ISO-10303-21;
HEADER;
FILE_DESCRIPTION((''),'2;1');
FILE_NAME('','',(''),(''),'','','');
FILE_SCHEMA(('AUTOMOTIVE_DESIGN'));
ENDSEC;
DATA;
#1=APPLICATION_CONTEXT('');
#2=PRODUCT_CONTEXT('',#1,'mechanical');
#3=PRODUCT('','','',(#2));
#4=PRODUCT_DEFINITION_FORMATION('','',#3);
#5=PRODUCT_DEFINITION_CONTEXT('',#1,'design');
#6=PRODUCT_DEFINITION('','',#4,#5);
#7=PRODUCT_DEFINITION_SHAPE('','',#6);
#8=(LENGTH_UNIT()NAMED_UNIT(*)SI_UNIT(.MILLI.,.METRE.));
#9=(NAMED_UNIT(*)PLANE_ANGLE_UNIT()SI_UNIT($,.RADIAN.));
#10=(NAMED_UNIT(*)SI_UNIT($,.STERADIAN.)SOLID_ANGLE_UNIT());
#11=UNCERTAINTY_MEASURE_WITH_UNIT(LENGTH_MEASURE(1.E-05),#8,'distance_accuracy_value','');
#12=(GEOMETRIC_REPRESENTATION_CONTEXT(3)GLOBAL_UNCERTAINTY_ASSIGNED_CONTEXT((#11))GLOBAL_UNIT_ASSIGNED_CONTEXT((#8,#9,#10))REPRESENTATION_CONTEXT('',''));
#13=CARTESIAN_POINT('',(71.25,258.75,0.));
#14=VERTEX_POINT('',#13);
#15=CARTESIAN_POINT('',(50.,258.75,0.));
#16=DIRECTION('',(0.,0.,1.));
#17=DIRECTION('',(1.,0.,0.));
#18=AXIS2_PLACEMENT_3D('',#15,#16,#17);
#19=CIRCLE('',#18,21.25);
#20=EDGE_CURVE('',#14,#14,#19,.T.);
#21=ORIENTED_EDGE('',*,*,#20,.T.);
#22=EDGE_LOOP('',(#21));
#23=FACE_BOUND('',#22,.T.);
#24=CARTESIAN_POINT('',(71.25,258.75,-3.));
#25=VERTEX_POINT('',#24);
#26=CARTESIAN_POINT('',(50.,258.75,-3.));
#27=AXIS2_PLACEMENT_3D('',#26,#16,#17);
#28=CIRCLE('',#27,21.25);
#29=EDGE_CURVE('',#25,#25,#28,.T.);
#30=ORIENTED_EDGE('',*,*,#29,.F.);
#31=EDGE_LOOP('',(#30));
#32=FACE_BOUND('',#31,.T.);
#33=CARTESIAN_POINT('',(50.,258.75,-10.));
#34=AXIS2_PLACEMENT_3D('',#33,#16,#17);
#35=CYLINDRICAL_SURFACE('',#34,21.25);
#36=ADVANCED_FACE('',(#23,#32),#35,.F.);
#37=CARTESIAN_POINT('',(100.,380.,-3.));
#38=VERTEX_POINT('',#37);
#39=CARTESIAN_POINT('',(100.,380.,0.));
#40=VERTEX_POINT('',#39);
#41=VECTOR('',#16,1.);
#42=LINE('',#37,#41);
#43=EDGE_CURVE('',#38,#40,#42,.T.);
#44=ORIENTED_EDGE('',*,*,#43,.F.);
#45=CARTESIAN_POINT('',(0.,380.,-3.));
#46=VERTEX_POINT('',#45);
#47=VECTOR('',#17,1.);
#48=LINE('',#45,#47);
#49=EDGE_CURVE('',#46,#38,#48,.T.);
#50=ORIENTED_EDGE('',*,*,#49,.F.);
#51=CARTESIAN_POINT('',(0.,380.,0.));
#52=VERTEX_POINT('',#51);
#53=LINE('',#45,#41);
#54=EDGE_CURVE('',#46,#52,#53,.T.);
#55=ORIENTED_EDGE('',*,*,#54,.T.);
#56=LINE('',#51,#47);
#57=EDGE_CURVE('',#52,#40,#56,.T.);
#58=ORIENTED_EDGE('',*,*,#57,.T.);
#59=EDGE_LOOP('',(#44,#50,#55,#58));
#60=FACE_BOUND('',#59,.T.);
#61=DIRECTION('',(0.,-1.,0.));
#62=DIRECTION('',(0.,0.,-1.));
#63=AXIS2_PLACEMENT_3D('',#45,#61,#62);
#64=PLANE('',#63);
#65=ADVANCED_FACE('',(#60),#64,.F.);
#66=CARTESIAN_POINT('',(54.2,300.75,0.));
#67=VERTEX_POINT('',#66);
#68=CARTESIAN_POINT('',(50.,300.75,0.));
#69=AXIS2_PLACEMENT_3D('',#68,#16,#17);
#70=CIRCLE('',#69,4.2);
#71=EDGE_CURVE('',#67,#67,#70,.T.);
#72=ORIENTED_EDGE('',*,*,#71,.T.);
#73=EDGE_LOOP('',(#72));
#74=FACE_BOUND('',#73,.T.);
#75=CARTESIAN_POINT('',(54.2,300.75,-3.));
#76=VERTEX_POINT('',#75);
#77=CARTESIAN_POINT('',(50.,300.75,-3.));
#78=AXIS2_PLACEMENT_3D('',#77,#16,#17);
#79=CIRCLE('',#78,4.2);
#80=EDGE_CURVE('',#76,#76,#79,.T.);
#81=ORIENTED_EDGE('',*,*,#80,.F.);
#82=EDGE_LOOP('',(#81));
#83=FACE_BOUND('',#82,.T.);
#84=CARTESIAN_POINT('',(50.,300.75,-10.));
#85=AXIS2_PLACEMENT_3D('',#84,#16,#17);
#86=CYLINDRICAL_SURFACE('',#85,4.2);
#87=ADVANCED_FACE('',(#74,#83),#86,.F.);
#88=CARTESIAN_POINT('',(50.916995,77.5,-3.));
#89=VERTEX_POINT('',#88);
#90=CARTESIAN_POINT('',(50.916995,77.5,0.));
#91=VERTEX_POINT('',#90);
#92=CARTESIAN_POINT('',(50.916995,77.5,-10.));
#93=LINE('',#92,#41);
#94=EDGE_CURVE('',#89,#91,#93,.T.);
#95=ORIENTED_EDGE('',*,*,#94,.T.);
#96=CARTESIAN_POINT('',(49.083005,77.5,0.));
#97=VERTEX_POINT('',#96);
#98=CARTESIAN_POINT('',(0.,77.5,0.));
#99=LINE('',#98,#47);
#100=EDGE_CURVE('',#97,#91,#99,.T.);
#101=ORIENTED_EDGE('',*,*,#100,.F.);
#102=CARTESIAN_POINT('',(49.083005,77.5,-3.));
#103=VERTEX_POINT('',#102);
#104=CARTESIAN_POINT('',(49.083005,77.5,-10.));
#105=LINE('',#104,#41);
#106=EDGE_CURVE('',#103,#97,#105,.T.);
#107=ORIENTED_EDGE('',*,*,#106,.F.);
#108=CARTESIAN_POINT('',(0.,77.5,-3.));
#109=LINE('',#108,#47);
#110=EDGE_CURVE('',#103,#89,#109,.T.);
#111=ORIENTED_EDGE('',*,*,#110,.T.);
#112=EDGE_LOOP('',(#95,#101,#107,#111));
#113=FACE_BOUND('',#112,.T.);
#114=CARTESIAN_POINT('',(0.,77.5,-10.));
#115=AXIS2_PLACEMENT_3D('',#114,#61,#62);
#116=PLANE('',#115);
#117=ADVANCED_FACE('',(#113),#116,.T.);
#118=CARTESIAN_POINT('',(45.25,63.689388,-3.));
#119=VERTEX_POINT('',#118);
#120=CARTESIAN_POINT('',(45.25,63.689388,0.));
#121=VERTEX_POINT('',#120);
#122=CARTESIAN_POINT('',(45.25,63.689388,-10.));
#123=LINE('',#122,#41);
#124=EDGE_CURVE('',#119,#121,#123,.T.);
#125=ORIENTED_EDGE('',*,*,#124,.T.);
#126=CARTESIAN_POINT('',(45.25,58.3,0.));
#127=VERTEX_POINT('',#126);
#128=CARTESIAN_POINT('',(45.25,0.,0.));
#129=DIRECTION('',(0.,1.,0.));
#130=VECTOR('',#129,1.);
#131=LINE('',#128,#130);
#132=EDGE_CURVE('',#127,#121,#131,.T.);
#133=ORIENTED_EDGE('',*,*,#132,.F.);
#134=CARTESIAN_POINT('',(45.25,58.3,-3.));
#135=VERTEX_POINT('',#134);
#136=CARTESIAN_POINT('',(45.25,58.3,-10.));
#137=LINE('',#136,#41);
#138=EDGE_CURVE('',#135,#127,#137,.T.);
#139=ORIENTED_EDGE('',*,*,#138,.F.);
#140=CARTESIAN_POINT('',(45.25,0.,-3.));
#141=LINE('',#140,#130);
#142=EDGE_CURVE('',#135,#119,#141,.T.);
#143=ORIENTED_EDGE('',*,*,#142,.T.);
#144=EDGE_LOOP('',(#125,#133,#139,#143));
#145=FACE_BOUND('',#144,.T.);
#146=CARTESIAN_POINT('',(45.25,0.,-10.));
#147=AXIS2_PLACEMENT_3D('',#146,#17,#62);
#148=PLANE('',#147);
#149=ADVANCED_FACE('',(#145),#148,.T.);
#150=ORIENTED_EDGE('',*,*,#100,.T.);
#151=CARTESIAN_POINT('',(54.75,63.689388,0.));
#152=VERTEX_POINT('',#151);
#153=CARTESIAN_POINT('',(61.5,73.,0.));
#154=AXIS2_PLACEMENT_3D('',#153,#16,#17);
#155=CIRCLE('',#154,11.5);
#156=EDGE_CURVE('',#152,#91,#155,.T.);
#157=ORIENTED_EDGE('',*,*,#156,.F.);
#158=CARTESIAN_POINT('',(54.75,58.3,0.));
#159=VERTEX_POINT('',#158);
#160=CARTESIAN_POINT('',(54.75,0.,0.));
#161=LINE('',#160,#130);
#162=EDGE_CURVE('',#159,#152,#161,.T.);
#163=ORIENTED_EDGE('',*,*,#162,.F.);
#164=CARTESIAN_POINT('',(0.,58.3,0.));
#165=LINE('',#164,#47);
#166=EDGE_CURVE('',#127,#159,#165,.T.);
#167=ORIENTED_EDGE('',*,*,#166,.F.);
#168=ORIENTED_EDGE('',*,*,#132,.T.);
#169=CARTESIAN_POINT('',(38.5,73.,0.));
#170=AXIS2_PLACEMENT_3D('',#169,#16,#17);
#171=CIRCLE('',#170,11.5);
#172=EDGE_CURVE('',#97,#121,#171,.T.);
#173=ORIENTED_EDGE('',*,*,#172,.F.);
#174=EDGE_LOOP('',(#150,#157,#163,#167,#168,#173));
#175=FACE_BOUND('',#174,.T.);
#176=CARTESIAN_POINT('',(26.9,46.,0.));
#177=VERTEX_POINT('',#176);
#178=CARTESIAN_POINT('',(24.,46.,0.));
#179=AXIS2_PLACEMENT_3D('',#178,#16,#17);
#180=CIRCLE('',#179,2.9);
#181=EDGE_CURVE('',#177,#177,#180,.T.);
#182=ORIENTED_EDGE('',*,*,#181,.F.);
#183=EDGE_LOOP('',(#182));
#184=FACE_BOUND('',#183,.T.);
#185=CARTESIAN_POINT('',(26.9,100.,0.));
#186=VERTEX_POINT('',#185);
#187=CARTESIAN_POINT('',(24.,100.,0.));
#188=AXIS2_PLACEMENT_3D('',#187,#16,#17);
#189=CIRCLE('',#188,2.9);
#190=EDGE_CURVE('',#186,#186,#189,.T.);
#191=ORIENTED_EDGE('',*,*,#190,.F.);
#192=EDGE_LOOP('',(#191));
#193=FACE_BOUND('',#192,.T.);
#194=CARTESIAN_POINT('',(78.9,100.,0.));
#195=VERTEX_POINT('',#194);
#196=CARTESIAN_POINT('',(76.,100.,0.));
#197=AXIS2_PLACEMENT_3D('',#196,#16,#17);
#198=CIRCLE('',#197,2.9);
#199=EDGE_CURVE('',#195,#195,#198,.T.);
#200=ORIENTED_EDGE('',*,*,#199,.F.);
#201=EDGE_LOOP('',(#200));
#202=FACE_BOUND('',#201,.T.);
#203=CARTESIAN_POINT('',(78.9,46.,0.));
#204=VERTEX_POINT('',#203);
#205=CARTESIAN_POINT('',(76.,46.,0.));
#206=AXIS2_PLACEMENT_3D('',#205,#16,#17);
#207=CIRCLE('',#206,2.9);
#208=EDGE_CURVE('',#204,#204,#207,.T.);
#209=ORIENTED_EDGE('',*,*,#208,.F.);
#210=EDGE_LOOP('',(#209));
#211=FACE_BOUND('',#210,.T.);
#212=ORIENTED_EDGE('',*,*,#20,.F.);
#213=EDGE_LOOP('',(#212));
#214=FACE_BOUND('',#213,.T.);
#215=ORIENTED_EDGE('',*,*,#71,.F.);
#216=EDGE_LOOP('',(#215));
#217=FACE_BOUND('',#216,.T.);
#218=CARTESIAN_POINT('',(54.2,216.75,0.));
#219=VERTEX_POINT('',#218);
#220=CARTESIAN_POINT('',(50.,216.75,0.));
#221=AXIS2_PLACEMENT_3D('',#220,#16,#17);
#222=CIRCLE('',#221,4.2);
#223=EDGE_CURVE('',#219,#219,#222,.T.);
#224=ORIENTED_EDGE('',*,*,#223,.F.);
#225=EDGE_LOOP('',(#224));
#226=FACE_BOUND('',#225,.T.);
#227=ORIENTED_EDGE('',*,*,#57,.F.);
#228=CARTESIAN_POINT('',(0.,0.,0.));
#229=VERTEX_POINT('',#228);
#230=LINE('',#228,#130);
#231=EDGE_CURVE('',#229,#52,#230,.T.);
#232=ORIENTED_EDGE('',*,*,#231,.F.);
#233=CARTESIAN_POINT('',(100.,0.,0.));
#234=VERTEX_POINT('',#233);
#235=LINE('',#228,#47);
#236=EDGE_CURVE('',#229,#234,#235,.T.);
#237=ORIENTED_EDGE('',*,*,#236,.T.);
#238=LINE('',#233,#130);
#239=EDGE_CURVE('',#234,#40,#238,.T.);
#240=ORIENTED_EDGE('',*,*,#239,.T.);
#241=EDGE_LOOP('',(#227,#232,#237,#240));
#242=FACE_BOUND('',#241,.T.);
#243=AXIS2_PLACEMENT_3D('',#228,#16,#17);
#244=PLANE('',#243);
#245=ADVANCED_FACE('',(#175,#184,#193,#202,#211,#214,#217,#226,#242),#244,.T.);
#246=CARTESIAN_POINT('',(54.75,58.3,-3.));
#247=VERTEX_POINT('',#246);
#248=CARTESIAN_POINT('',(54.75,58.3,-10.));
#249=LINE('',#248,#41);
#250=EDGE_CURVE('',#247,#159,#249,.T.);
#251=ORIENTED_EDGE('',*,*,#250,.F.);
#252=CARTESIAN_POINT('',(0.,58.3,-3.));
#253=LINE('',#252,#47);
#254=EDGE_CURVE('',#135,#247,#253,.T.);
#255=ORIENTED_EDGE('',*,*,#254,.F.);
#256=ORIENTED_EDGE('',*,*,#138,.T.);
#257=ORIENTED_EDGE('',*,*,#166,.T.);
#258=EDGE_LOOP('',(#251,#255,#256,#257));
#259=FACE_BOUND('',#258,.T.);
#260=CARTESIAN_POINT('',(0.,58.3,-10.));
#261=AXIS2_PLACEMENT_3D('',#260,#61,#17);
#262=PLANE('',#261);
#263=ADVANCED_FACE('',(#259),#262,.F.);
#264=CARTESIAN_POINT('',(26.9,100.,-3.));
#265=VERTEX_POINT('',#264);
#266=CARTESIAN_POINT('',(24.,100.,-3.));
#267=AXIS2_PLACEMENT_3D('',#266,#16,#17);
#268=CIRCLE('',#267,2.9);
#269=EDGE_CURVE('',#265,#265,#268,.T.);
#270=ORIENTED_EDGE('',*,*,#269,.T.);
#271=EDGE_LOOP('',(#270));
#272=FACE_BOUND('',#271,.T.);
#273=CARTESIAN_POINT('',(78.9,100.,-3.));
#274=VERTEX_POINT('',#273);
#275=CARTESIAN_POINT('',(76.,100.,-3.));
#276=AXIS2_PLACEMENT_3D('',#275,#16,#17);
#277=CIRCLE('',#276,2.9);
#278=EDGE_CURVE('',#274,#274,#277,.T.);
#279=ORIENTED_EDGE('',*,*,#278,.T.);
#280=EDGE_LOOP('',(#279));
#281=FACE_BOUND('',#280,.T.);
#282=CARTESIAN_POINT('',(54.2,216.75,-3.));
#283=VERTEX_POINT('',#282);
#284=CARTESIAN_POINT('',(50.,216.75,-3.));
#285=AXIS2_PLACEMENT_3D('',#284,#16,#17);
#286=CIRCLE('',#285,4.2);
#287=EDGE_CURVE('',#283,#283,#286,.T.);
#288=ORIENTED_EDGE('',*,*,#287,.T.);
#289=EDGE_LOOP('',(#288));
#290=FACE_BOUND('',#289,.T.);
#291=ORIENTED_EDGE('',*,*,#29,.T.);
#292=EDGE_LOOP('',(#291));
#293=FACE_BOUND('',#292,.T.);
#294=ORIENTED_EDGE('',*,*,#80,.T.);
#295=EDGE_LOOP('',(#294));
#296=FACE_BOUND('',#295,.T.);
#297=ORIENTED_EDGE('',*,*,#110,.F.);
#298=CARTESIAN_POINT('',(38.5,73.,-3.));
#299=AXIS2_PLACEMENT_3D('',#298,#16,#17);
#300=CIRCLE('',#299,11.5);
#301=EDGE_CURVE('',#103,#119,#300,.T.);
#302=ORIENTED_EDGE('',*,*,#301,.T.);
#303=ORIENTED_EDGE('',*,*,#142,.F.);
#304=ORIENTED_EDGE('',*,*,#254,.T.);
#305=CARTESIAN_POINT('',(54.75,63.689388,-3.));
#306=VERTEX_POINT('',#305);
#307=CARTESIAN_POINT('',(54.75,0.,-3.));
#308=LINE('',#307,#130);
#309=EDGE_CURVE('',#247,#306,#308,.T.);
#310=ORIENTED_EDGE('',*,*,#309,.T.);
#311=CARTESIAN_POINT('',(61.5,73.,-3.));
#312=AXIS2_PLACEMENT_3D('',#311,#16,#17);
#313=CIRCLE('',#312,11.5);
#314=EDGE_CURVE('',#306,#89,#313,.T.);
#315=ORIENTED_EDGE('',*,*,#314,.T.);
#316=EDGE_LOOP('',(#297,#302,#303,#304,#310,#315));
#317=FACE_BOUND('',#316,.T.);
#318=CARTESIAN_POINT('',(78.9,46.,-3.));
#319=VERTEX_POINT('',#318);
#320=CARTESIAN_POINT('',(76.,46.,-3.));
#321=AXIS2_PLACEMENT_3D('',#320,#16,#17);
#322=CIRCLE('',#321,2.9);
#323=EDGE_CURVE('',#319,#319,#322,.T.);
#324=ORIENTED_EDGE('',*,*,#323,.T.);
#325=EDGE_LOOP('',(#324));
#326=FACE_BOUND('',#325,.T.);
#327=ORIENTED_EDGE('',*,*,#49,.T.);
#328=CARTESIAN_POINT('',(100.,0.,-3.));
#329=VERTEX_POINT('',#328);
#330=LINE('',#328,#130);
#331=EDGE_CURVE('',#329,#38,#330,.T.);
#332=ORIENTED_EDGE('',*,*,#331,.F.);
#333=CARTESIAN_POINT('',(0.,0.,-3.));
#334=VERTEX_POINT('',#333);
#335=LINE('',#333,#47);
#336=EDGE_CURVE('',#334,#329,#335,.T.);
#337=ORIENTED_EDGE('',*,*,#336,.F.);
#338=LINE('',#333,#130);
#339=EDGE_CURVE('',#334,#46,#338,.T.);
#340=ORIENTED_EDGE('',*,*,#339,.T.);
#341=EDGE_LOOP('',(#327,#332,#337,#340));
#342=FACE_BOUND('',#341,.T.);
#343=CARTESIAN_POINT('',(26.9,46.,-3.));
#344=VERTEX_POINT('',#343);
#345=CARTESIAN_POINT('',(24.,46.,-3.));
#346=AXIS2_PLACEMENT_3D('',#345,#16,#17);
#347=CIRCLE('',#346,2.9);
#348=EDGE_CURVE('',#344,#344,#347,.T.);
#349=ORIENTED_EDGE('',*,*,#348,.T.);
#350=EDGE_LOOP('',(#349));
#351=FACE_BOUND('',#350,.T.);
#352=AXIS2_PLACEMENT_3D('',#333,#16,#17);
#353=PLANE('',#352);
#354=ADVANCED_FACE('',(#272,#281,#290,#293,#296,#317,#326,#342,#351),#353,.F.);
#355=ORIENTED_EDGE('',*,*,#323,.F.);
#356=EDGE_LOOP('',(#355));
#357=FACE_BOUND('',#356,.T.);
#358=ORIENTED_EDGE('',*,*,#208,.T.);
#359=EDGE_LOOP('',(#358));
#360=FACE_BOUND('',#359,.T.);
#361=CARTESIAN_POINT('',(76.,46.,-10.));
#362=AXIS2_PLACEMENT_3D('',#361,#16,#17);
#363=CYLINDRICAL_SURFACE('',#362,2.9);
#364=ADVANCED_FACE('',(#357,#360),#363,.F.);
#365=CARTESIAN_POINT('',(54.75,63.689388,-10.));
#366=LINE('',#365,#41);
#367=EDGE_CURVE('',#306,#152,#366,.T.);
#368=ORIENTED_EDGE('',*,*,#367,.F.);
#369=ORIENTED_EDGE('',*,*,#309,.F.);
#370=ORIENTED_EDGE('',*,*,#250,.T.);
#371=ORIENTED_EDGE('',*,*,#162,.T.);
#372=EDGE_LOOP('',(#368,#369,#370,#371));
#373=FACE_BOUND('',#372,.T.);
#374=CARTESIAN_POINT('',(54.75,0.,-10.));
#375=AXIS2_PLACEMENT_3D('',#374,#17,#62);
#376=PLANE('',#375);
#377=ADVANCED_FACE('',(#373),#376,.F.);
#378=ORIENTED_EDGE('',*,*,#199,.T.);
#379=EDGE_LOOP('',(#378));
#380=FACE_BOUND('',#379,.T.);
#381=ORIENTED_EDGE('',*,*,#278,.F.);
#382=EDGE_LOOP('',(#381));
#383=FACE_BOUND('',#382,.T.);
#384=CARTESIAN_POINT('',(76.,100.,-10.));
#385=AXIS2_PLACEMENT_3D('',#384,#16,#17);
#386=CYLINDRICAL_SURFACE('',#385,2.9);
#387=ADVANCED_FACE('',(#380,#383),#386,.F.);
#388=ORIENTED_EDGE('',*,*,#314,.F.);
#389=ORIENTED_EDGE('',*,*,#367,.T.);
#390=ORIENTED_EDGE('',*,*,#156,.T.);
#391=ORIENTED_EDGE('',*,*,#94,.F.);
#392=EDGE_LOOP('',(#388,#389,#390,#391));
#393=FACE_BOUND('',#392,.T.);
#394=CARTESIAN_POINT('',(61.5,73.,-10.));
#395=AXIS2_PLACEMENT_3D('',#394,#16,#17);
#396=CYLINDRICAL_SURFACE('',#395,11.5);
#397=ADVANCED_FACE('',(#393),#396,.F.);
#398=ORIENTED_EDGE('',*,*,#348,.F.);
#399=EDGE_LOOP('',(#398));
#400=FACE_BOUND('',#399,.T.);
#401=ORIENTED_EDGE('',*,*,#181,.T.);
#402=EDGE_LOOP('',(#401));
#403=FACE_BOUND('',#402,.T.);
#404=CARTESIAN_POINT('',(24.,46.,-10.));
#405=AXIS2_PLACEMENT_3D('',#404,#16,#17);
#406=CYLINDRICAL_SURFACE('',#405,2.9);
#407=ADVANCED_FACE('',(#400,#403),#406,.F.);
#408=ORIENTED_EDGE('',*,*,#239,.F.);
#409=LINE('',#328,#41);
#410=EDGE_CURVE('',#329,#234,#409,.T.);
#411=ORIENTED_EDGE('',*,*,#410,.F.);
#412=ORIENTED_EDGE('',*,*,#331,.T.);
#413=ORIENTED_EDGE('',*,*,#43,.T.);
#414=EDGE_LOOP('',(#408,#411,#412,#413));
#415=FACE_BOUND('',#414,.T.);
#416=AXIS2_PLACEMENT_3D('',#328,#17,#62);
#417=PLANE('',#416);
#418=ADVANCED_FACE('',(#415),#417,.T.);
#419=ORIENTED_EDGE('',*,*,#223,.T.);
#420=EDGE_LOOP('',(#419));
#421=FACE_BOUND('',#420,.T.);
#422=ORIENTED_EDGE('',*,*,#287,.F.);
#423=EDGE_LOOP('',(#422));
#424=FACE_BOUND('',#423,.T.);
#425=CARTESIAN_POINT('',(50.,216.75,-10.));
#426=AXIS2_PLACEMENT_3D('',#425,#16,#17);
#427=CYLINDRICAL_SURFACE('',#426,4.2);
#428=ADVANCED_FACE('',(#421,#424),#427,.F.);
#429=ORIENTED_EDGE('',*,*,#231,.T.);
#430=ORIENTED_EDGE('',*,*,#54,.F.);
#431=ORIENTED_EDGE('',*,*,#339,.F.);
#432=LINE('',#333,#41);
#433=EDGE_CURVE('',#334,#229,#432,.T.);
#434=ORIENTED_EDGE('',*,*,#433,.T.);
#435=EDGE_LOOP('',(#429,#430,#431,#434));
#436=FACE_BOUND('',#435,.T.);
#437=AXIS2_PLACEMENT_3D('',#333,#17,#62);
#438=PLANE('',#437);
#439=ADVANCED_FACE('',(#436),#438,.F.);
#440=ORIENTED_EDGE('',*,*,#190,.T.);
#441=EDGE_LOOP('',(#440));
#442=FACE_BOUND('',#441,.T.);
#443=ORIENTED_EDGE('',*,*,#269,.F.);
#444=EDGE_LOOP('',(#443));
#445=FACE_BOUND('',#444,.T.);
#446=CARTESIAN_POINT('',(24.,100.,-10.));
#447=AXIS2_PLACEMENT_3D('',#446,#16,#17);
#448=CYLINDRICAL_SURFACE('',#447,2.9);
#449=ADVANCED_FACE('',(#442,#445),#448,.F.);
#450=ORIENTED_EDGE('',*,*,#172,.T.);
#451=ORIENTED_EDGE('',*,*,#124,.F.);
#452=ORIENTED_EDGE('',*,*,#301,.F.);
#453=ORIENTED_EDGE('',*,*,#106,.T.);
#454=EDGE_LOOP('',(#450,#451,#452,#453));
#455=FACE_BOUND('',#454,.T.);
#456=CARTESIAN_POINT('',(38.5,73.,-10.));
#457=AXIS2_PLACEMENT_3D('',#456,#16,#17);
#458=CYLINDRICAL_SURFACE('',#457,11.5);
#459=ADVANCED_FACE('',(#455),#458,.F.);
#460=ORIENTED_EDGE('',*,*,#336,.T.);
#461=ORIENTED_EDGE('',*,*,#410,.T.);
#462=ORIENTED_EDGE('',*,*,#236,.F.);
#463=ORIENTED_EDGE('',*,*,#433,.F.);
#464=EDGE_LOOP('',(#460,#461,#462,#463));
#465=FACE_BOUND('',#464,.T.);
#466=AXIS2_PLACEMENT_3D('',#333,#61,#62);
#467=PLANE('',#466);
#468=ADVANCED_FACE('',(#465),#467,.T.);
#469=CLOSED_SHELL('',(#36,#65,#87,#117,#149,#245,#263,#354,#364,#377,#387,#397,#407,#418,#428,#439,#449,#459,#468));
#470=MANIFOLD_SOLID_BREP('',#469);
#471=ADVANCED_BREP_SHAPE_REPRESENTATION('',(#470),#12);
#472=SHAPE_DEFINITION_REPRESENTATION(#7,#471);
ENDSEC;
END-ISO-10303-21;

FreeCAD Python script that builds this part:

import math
import FreeCAD as App
import Part
import Sketcher


def add_polygon(sketch, points):
    """Adds a closed chain of lines whose ends are joined by coincident constraints."""
    first, n = sketch.GeometryCount, len(points)
    for a, b in zip(points, points[1:] + points[:1]):
        sketch.addGeometry(Part.LineSegment(App.Vector(*a, 0), App.Vector(*b, 0)), False)
    for i in range(n):
        sketch.addConstraint(Sketcher.Constraint("Coincident", first + i, 2, first + (i + 1) % n, 1))

doc = App.newDocument("Part")
body = doc.addObject("PartDesign::Body", "Body")

# Sketch on XY plane
sketch1 = body.newObject("Sketcher::SketchObject", "Sketch")
sketch1.AttachmentSupport = (doc.getObject("XY_Plane"), [""])
sketch1.MapMode = "FlatFace"
add_polygon(sketch1, [(0, 380), (0, 0), (100, 0), (100, 380)])  # lines 0-3
sketch1.addConstraint([
    Sketcher.Constraint("Vertical", 0),
    Sketcher.Constraint("Horizontal", 1),
    Sketcher.Constraint("Vertical", 2),
    Sketcher.Constraint("Horizontal", 3),
    Sketcher.Constraint("Coincident", 0, 2, -1, 1),
    Sketcher.Constraint("DistanceX", 1, 1, 1, 2, 100.0),
    Sketcher.Constraint("DistanceY", 0, 2, 0, 1, 380.0),
])
pad1 = body.newObject("PartDesign::Pad", "Pad")
pad1.Profile = sketch1
pad1.Length = 3
pad1.Reversed = True

# Sketch on XY plane
sketch2 = body.newObject("Sketcher::SketchObject", "Sketch001")
sketch2.AttachmentSupport = (doc.getObject("XY_Plane"), [""])
sketch2.MapMode = "FlatFace"
sketch2.addGeometry([
    Part.Circle(App.Vector(24, 100, 0), App.Vector(0, 0, 1), 2.9),  # 0
    Part.Circle(App.Vector(76, 100, 0), App.Vector(0, 0, 1), 2.9),  # 1
    Part.Circle(App.Vector(24, 46, 0), App.Vector(0, 0, 1), 2.9),  # 2
    Part.LineSegment(App.Vector(54.8, 58.3, 0), App.Vector(54.8, 63.7, 0)),  # 3
    Part.ArcOfCircle(Part.Circle(App.Vector(61.5, 73, 0), App.Vector(0, 0, 1), 11.5), math.radians(-126), math.radians(157)),  # 4
    Part.LineSegment(App.Vector(50.9, 77.5, 0), App.Vector(49.1, 77.5, 0)),  # 5
    Part.ArcOfCircle(Part.Circle(App.Vector(38.5, 73, 0), App.Vector(0, 0, 1), 11.5), math.radians(23), math.radians(306)),  # 6
    Part.LineSegment(App.Vector(45.2, 63.7, 0), App.Vector(45.2, 58.3, 0)),  # 7
    Part.LineSegment(App.Vector(45.2, 58.3, 0), App.Vector(54.8, 58.3, 0)),  # 8
    Part.Circle(App.Vector(50, 300.8, 0), App.Vector(0, 0, 1), 4.2),  # 9
    Part.Circle(App.Vector(50, 258.8, 0), App.Vector(0, 0, 1), 21.2),  # 10
    Part.Circle(App.Vector(50, 216.8, 0), App.Vector(0, 0, 1), 4.2),  # 11
    Part.Circle(App.Vector(76, 46, 0), App.Vector(0, 0, 1), 2.9),  # 12
], False)
sketch2.addConstraint([
    Sketcher.Constraint("Coincident", 3, 2, 4, 1),
    Sketcher.Constraint("Coincident", 4, 2, 5, 1),
    Sketcher.Constraint("Coincident", 5, 2, 6, 1),
    Sketcher.Constraint("Coincident", 6, 2, 7, 1),
    Sketcher.Constraint("Coincident", 7, 2, 8, 1),
    Sketcher.Constraint("Coincident", 8, 2, 3, 1),
    Sketcher.Constraint("Vertical", 3),
    Sketcher.Constraint("Horizontal", 5),
    Sketcher.Constraint("Vertical", 7),
    Sketcher.Constraint("Horizontal", 8),
    Sketcher.Constraint("Equal", 0, 1),
    Sketcher.Constraint("Equal", 1, 2),
    Sketcher.Constraint("Equal", 4, 6),
    Sketcher.Constraint("Equal", 9, 11),
    Sketcher.Constraint("Equal", 2, 12),
    Sketcher.Constraint("Horizontal", 0, 3, 1, 3),
    Sketcher.Constraint("Horizontal", 4, 3, 6, 3),
    Sketcher.Constraint("Horizontal", 2, 3, 12, 3),
    Sketcher.Constraint("Horizontal", 3, 2, 6, 2),
    Sketcher.Constraint("Vertical", 0, 3, 2, 3),
    Sketcher.Constraint("Vertical", 9, 3, 10, 3),
    Sketcher.Constraint("Vertical", 10, 3, 11, 3),
    Sketcher.Constraint("Vertical", 1, 3, 12, 3),
    Sketcher.Constraint("Diameter", 0, 5.8),
    Sketcher.Constraint("Diameter", 9, 8.4),
    Sketcher.Constraint("Diameter", 10, 42.5),
    Sketcher.Constraint("Radius", 4, 11.5),
    Sketcher.Constraint("DistanceX", 8, 1, 8, 2, 9.5),
    Sketcher.Constraint("DistanceX", -1, 1, 0, 3, 24.0),
    Sketcher.Constraint("DistanceY", -1, 1, 0, 3, 100.0),
    Sketcher.Constraint("DistanceX", -1, 1, 1, 3, 76.0),
    Sketcher.Constraint("DistanceY", -1, 1, 2, 3, 46.0),
    Sketcher.Constraint("DistanceY", -1, 1, 4, 3, 73.0),
    Sketcher.Constraint("DistanceX", -1, 1, 9, 3, 50.0),
    Sketcher.Constraint("DistanceX", 6, 3, 4, 3, 23.0),
    Sketcher.Constraint("DistanceY", 10, 3, 9, 3, 42.0),
    Sketcher.Constraint("DistanceY", 11, 3, 10, 3, 42.0),
    Sketcher.Constraint("DistanceX", -1, 1, 4, 3, 61.5),
    Sketcher.Constraint("DistanceY", -1, 1, 4, 2, 77.5),
    Sketcher.Constraint("DistanceY", -1, 1, 7, 2, 58.3),
    Sketcher.Constraint("DistanceY", -1, 1, 9, 3, 300.75),
])
pocket1 = body.newObject("PartDesign::Pocket", "Pocket")
pocket1.Profile = sketch2
pocket1.Length = 10

doc.recompute()
